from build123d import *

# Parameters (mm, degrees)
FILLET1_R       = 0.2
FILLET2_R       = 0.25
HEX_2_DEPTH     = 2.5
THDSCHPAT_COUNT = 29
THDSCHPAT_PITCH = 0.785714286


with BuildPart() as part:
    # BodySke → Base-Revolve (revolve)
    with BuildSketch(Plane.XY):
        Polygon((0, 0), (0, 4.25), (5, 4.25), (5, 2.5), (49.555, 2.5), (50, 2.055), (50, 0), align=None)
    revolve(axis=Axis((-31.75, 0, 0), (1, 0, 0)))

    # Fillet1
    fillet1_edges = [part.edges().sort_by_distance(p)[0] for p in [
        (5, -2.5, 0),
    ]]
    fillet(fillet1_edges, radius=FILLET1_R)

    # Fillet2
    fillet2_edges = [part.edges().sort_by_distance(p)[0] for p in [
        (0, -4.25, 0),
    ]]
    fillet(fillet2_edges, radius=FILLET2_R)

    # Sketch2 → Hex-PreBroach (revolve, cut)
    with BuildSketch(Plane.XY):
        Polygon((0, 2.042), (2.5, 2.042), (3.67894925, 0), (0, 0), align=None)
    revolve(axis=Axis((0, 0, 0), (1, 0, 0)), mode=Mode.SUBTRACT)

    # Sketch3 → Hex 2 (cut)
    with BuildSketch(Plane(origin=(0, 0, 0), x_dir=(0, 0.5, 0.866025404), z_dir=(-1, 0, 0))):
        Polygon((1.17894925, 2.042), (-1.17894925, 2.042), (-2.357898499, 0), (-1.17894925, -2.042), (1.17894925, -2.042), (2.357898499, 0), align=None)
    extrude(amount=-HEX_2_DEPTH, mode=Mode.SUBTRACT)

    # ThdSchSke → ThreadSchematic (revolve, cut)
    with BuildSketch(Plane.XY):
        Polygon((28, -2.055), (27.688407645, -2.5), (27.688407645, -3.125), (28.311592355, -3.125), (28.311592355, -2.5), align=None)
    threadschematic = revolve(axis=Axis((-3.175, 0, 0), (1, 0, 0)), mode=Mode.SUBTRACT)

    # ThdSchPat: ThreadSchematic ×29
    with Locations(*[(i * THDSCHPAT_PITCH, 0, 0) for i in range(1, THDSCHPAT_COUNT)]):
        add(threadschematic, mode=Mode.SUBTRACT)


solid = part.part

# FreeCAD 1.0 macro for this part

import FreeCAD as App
import Part
import Sketcher
Q = App.Units.Quantity


def edges_at(feature, points):
    """Names of the edges that pass closest to the given points."""
    edges = feature.Shape.Edges
    near = lambda p: min(range(len(edges)), key=lambda i: edges[i].distToShape(Part.Vertex(*p))[0])
    return sorted({f"Edge{near(p) + 1}" for p in points})

doc = App.newDocument("Part")
body = doc.addObject("PartDesign::Body", "Body")

# Sketch on XY plane
sketch1 = body.newObject("Sketcher::SketchObject", "Sketch")
sketch1.AttachmentSupport = (doc.getObject("XY_Plane"), [""])
sketch1.MapMode = "FlatFace"
sketch1.addGeometry(Part.LineSegment(App.Vector(0, 4.2, 0), App.Vector(0, 0, 0)), False)
sketch1.addGeometry(Part.LineSegment(App.Vector(0, 0, 0), App.Vector(50, 0, 0)), False)
sketch1.addGeometry(Part.LineSegment(App.Vector(50, 0, 0), App.Vector(50, 2.1, 0)), False)
sketch1.addGeometry(Part.LineSegment(App.Vector(50, 2.1, 0), App.Vector(49.6, 2.5, 0)), False)
sketch1.addGeometry(Part.LineSegment(App.Vector(49.6, 2.5, 0), App.Vector(5, 2.5, 0)), False)
sketch1.addGeometry(Part.LineSegment(App.Vector(5, 2.5, 0), App.Vector(5, 4.2, 0)), False)
sketch1.addGeometry(Part.LineSegment(App.Vector(5, 4.2, 0), App.Vector(0, 4.2, 0)), False)
sketch1.addConstraint(Sketcher.Constraint("Coincident", 0, 2, 1, 1))
sketch1.addConstraint(Sketcher.Constraint("Coincident", 1, 2, 2, 1))
sketch1.addConstraint(Sketcher.Constraint("Coincident", 2, 2, 3, 1))
sketch1.addConstraint(Sketcher.Constraint("Coincident", 3, 2, 4, 1))
sketch1.addConstraint(Sketcher.Constraint("Coincident", 4, 2, 5, 1))
sketch1.addConstraint(Sketcher.Constraint("Coincident", 5, 2, 6, 1))
sketch1.addConstraint(Sketcher.Constraint("Coincident", 6, 2, 0, 1))
sketch1.addConstraint(Sketcher.Constraint("Vertical", 0))
sketch1.addConstraint(Sketcher.Constraint("Horizontal", 1))
sketch1.addConstraint(Sketcher.Constraint("Vertical", 2))
sketch1.addConstraint(Sketcher.Constraint("Horizontal", 4))
sketch1.addConstraint(Sketcher.Constraint("Vertical", 5))
sketch1.addConstraint(Sketcher.Constraint("Horizontal", 6))
sketch1.addConstraint(Sketcher.Constraint("Coincident", 0, 2, -1, 1))
sketch1.addConstraint(Sketcher.Constraint("DistanceX", 1, 1, 1, 2, 50.0))
sketch1.addConstraint(Sketcher.Constraint("DistanceX", 6, 2, 6, 1, 5.0))
sketch1.addConstraint(Sketcher.Constraint("Angle", 3, Q("135 deg")))
sketch1.addConstraint(Sketcher.Constraint("DistanceY", 0, 2, 0, 1, 4.25))
sketch1.addConstraint(Sketcher.Constraint("DistanceY", 5, 1, 5, 2, 1.75))
sketch1.addConstraint(Sketcher.Constraint("DistanceX", 4, 2, 4, 1, 44.555))
revolution = body.newObject("PartDesign::Revolution", "Revolution")
revolution.Profile = sketch1
revolution.ReferenceAxis = (sketch1, ["H_Axis"])
revolution.Angle = 360
doc.recompute()

fillet = body.newObject("PartDesign::Fillet", "Fillet")
fillet.Base = (revolution, edges_at(revolution, [(5, -2.5, 0)]))
fillet.Radius = 0.2
doc.recompute()

fillet2 = body.newObject("PartDesign::Fillet", "Fillet001")
fillet2.Base = (fillet, edges_at(fillet, [(0, -4.25, 0)]))
fillet2.Radius = 0.25

# Sketch on XY plane
sketch2 = body.newObject("Sketcher::SketchObject", "Sketch001")
sketch2.AttachmentSupport = (doc.getObject("XY_Plane"), [""])
sketch2.MapMode = "FlatFace"
sketch2.addGeometry(Part.LineSegment(App.Vector(2.5, 2, 0), App.Vector(0, 2, 0)), False)
sketch2.addGeometry(Part.LineSegment(App.Vector(0, 2, 0), App.Vector(0, 0, 0)), False)
sketch2.addGeometry(Part.LineSegment(App.Vector(0, 0, 0), App.Vector(3.7, 0, 0)), False)
sketch2.addGeometry(Part.LineSegment(App.Vector(3.7, 0, 0), App.Vector(2.5, 2, 0)), False)
sketch2.addConstraint(Sketcher.Constraint("Coincident", 0, 2, 1, 1))
sketch2.addConstraint(Sketcher.Constraint("Coincident", 1, 2, 2, 1))
sketch2.addConstraint(Sketcher.Constraint("Coincident", 2, 2, 3, 1))
sketch2.addConstraint(Sketcher.Constraint("Coincident", 3, 2, 0, 1))
sketch2.addConstraint(Sketcher.Constraint("Horizontal", 0))
sketch2.addConstraint(Sketcher.Constraint("Vertical", 1))
sketch2.addConstraint(Sketcher.Constraint("Horizontal", 2))
sketch2.addConstraint(Sketcher.Constraint("Coincident", 1, 2, -1, 1))
sketch2.addConstraint(Sketcher.Constraint("Angle", 3, Q("120 deg")))
sketch2.addConstraint(Sketcher.Constraint("DistanceX", 0, 2, 0, 1, 2.5))
sketch2.addConstraint(Sketcher.Constraint("DistanceY", 1, 2, 1, 1, 2.042))
groove = body.newObject("PartDesign::Groove", "Groove")
groove.Profile = sketch2
groove.ReferenceAxis = (sketch2, ["H_Axis"])
groove.Angle = 360

# Sketch on YZ plane
sketch3 = body.newObject("Sketcher::SketchObject", "Sketch002")
sketch3.AttachmentSupport = (doc.getObject("YZ_Plane"), [""])
sketch3.MapMode = "FlatFace"
sketch3.addGeometry(Part.LineSegment(App.Vector(2.4, 0, 0), App.Vector(1.2, -2, 0)), False)
sketch3.addGeometry(Part.LineSegment(App.Vector(1.2, -2, 0), App.Vector(-1.2, -2, 0)), False)
sketch3.addGeometry(Part.LineSegment(App.Vector(-1.2, -2, 0), App.Vector(-2.4, 0, 0)), False)
sketch3.addGeometry(Part.LineSegment(App.Vector(-2.4, 0, 0), App.Vector(-1.2, 2, 0)), False)
sketch3.addGeometry(Part.LineSegment(App.Vector(-1.2, 2, 0), App.Vector(1.2, 2, 0)), False)
sketch3.addGeometry(Part.LineSegment(App.Vector(1.2, 2, 0), App.Vector(2.4, 0, 0)), False)
sketch3.addConstraint(Sketcher.Constraint("Coincident", 0, 2, 1, 1))
sketch3.addConstraint(Sketcher.Constraint("Coincident", 1, 2, 2, 1))
sketch3.addConstraint(Sketcher.Constraint("Coincident", 2, 2, 3, 1))
sketch3.addConstraint(Sketcher.Constraint("Coincident", 3, 2, 4, 1))
sketch3.addConstraint(Sketcher.Constraint("Coincident", 4, 2, 5, 1))
sketch3.addConstraint(Sketcher.Constraint("Coincident", 5, 2, 0, 1))
sketch3.addConstraint(Sketcher.Constraint("Horizontal", 1))
sketch3.addConstraint(Sketcher.Constraint("Horizontal", 4))
sketch3.addConstraint(Sketcher.Constraint("Symmetric", 0, 2, 3, 2, -1, 1))
sketch3.addConstraint(Sketcher.Constraint("Symmetric", 2, 2, 5, 2, -1, 1))
sketch3.addConstraint(Sketcher.Constraint("PointOnObject", 2, 2, -1))
sketch3.addConstraint(Sketcher.Constraint("Parallel", 2, 5))
sketch3.addConstraint(Sketcher.Constraint("Vertical", 1, 2, 3, 2))
sketch3.addConstraint(Sketcher.Constraint("Angle", 0, Q("-120 deg")))
sketch3.addConstraint(Sketcher.Constraint("DistanceX", 1, 2, 1, 1, 2.357899))
sketch3.addConstraint(Sketcher.Constraint("DistanceY", 0, 2, -1, 1, 2.042))
pocket1 = body.newObject("PartDesign::Pocket", "Pocket")
pocket1.Profile = sketch3
pocket1.Length = 2.5
pocket1.Reversed = True

# Sketch on XY plane
sketch4 = body.newObject("Sketcher::SketchObject", "Sketch003")
sketch4.AttachmentSupport = (doc.getObject("XY_Plane"), [""])
sketch4.MapMode = "FlatFace"
sketch4.addGeometry(Part.LineSegment(App.Vector(28, -2.1, 0), App.Vector(27.7, -2.5, 0)), False)
sketch4.addGeometry(Part.LineSegment(App.Vector(27.7, -2.5, 0), App.Vector(27.7, -3.1, 0)), False)
sketch4.addGeometry(Part.LineSegment(App.Vector(27.7, -3.1, 0), App.Vector(28.3, -3.1, 0)), False)
sketch4.addGeometry(Part.LineSegment(App.Vector(28.3, -3.1, 0), App.Vector(28.3, -2.5, 0)), False)
sketch4.addGeometry(Part.LineSegment(App.Vector(28.3, -2.5, 0), App.Vector(28, -2.1, 0)), False)
sketch4.addConstraint(Sketcher.Constraint("Coincident", 0, 2, 1, 1))
sketch4.addConstraint(Sketcher.Constraint("Coincident", 1, 2, 2, 1))
sketch4.addConstraint(Sketcher.Constraint("Coincident", 2, 2, 3, 1))
sketch4.addConstraint(Sketcher.Constraint("Coincident", 3, 2, 4, 1))
sketch4.addConstraint(Sketcher.Constraint("Coincident", 4, 2, 0, 1))
sketch4.addConstraint(Sketcher.Constraint("Vertical", 1))
sketch4.addConstraint(Sketcher.Constraint("Horizontal", 2))
sketch4.addConstraint(Sketcher.Constraint("Vertical", 3))
sketch4.addConstraint(Sketcher.Constraint("Horizontal", 0, 2, 3, 2))
sketch4.addConstraint(Sketcher.Constraint("Equal", 0, 4))
sketch4.addConstraint(Sketcher.Constraint("Angle", 0, Q("-125 deg")))
sketch4.addConstraint(Sketcher.Constraint("DistanceX", -1, 1, 4, 2, 28.0))
sketch4.addConstraint(Sketcher.Constraint("DistanceY", 0, 2, -1, 1, 2.5))
sketch4.addConstraint(Sketcher.Constraint("DistanceY", 1, 2, 1, 1, 0.625))
sketch4.addConstraint(Sketcher.Constraint("DistanceY", 1, 2, 4, 2, 1.07))
groove2 = body.newObject("PartDesign::Groove", "Groove001")
groove2.Profile = sketch4
groove2.ReferenceAxis = (sketch4, ["H_Axis"])
groove2.Angle = 360
doc.recompute()

linearpattern = body.newObject("PartDesign::LinearPattern", "LinearPattern")
linearpattern.Originals = [groove2]
linearpattern.Direction = (doc.getObject("X_Axis"), [""])
linearpattern.Mode = "offset"
linearpattern.Offset = 0.785714
linearpattern.Occurrences = 29
body.Tip = linearpattern

doc.recompute()
